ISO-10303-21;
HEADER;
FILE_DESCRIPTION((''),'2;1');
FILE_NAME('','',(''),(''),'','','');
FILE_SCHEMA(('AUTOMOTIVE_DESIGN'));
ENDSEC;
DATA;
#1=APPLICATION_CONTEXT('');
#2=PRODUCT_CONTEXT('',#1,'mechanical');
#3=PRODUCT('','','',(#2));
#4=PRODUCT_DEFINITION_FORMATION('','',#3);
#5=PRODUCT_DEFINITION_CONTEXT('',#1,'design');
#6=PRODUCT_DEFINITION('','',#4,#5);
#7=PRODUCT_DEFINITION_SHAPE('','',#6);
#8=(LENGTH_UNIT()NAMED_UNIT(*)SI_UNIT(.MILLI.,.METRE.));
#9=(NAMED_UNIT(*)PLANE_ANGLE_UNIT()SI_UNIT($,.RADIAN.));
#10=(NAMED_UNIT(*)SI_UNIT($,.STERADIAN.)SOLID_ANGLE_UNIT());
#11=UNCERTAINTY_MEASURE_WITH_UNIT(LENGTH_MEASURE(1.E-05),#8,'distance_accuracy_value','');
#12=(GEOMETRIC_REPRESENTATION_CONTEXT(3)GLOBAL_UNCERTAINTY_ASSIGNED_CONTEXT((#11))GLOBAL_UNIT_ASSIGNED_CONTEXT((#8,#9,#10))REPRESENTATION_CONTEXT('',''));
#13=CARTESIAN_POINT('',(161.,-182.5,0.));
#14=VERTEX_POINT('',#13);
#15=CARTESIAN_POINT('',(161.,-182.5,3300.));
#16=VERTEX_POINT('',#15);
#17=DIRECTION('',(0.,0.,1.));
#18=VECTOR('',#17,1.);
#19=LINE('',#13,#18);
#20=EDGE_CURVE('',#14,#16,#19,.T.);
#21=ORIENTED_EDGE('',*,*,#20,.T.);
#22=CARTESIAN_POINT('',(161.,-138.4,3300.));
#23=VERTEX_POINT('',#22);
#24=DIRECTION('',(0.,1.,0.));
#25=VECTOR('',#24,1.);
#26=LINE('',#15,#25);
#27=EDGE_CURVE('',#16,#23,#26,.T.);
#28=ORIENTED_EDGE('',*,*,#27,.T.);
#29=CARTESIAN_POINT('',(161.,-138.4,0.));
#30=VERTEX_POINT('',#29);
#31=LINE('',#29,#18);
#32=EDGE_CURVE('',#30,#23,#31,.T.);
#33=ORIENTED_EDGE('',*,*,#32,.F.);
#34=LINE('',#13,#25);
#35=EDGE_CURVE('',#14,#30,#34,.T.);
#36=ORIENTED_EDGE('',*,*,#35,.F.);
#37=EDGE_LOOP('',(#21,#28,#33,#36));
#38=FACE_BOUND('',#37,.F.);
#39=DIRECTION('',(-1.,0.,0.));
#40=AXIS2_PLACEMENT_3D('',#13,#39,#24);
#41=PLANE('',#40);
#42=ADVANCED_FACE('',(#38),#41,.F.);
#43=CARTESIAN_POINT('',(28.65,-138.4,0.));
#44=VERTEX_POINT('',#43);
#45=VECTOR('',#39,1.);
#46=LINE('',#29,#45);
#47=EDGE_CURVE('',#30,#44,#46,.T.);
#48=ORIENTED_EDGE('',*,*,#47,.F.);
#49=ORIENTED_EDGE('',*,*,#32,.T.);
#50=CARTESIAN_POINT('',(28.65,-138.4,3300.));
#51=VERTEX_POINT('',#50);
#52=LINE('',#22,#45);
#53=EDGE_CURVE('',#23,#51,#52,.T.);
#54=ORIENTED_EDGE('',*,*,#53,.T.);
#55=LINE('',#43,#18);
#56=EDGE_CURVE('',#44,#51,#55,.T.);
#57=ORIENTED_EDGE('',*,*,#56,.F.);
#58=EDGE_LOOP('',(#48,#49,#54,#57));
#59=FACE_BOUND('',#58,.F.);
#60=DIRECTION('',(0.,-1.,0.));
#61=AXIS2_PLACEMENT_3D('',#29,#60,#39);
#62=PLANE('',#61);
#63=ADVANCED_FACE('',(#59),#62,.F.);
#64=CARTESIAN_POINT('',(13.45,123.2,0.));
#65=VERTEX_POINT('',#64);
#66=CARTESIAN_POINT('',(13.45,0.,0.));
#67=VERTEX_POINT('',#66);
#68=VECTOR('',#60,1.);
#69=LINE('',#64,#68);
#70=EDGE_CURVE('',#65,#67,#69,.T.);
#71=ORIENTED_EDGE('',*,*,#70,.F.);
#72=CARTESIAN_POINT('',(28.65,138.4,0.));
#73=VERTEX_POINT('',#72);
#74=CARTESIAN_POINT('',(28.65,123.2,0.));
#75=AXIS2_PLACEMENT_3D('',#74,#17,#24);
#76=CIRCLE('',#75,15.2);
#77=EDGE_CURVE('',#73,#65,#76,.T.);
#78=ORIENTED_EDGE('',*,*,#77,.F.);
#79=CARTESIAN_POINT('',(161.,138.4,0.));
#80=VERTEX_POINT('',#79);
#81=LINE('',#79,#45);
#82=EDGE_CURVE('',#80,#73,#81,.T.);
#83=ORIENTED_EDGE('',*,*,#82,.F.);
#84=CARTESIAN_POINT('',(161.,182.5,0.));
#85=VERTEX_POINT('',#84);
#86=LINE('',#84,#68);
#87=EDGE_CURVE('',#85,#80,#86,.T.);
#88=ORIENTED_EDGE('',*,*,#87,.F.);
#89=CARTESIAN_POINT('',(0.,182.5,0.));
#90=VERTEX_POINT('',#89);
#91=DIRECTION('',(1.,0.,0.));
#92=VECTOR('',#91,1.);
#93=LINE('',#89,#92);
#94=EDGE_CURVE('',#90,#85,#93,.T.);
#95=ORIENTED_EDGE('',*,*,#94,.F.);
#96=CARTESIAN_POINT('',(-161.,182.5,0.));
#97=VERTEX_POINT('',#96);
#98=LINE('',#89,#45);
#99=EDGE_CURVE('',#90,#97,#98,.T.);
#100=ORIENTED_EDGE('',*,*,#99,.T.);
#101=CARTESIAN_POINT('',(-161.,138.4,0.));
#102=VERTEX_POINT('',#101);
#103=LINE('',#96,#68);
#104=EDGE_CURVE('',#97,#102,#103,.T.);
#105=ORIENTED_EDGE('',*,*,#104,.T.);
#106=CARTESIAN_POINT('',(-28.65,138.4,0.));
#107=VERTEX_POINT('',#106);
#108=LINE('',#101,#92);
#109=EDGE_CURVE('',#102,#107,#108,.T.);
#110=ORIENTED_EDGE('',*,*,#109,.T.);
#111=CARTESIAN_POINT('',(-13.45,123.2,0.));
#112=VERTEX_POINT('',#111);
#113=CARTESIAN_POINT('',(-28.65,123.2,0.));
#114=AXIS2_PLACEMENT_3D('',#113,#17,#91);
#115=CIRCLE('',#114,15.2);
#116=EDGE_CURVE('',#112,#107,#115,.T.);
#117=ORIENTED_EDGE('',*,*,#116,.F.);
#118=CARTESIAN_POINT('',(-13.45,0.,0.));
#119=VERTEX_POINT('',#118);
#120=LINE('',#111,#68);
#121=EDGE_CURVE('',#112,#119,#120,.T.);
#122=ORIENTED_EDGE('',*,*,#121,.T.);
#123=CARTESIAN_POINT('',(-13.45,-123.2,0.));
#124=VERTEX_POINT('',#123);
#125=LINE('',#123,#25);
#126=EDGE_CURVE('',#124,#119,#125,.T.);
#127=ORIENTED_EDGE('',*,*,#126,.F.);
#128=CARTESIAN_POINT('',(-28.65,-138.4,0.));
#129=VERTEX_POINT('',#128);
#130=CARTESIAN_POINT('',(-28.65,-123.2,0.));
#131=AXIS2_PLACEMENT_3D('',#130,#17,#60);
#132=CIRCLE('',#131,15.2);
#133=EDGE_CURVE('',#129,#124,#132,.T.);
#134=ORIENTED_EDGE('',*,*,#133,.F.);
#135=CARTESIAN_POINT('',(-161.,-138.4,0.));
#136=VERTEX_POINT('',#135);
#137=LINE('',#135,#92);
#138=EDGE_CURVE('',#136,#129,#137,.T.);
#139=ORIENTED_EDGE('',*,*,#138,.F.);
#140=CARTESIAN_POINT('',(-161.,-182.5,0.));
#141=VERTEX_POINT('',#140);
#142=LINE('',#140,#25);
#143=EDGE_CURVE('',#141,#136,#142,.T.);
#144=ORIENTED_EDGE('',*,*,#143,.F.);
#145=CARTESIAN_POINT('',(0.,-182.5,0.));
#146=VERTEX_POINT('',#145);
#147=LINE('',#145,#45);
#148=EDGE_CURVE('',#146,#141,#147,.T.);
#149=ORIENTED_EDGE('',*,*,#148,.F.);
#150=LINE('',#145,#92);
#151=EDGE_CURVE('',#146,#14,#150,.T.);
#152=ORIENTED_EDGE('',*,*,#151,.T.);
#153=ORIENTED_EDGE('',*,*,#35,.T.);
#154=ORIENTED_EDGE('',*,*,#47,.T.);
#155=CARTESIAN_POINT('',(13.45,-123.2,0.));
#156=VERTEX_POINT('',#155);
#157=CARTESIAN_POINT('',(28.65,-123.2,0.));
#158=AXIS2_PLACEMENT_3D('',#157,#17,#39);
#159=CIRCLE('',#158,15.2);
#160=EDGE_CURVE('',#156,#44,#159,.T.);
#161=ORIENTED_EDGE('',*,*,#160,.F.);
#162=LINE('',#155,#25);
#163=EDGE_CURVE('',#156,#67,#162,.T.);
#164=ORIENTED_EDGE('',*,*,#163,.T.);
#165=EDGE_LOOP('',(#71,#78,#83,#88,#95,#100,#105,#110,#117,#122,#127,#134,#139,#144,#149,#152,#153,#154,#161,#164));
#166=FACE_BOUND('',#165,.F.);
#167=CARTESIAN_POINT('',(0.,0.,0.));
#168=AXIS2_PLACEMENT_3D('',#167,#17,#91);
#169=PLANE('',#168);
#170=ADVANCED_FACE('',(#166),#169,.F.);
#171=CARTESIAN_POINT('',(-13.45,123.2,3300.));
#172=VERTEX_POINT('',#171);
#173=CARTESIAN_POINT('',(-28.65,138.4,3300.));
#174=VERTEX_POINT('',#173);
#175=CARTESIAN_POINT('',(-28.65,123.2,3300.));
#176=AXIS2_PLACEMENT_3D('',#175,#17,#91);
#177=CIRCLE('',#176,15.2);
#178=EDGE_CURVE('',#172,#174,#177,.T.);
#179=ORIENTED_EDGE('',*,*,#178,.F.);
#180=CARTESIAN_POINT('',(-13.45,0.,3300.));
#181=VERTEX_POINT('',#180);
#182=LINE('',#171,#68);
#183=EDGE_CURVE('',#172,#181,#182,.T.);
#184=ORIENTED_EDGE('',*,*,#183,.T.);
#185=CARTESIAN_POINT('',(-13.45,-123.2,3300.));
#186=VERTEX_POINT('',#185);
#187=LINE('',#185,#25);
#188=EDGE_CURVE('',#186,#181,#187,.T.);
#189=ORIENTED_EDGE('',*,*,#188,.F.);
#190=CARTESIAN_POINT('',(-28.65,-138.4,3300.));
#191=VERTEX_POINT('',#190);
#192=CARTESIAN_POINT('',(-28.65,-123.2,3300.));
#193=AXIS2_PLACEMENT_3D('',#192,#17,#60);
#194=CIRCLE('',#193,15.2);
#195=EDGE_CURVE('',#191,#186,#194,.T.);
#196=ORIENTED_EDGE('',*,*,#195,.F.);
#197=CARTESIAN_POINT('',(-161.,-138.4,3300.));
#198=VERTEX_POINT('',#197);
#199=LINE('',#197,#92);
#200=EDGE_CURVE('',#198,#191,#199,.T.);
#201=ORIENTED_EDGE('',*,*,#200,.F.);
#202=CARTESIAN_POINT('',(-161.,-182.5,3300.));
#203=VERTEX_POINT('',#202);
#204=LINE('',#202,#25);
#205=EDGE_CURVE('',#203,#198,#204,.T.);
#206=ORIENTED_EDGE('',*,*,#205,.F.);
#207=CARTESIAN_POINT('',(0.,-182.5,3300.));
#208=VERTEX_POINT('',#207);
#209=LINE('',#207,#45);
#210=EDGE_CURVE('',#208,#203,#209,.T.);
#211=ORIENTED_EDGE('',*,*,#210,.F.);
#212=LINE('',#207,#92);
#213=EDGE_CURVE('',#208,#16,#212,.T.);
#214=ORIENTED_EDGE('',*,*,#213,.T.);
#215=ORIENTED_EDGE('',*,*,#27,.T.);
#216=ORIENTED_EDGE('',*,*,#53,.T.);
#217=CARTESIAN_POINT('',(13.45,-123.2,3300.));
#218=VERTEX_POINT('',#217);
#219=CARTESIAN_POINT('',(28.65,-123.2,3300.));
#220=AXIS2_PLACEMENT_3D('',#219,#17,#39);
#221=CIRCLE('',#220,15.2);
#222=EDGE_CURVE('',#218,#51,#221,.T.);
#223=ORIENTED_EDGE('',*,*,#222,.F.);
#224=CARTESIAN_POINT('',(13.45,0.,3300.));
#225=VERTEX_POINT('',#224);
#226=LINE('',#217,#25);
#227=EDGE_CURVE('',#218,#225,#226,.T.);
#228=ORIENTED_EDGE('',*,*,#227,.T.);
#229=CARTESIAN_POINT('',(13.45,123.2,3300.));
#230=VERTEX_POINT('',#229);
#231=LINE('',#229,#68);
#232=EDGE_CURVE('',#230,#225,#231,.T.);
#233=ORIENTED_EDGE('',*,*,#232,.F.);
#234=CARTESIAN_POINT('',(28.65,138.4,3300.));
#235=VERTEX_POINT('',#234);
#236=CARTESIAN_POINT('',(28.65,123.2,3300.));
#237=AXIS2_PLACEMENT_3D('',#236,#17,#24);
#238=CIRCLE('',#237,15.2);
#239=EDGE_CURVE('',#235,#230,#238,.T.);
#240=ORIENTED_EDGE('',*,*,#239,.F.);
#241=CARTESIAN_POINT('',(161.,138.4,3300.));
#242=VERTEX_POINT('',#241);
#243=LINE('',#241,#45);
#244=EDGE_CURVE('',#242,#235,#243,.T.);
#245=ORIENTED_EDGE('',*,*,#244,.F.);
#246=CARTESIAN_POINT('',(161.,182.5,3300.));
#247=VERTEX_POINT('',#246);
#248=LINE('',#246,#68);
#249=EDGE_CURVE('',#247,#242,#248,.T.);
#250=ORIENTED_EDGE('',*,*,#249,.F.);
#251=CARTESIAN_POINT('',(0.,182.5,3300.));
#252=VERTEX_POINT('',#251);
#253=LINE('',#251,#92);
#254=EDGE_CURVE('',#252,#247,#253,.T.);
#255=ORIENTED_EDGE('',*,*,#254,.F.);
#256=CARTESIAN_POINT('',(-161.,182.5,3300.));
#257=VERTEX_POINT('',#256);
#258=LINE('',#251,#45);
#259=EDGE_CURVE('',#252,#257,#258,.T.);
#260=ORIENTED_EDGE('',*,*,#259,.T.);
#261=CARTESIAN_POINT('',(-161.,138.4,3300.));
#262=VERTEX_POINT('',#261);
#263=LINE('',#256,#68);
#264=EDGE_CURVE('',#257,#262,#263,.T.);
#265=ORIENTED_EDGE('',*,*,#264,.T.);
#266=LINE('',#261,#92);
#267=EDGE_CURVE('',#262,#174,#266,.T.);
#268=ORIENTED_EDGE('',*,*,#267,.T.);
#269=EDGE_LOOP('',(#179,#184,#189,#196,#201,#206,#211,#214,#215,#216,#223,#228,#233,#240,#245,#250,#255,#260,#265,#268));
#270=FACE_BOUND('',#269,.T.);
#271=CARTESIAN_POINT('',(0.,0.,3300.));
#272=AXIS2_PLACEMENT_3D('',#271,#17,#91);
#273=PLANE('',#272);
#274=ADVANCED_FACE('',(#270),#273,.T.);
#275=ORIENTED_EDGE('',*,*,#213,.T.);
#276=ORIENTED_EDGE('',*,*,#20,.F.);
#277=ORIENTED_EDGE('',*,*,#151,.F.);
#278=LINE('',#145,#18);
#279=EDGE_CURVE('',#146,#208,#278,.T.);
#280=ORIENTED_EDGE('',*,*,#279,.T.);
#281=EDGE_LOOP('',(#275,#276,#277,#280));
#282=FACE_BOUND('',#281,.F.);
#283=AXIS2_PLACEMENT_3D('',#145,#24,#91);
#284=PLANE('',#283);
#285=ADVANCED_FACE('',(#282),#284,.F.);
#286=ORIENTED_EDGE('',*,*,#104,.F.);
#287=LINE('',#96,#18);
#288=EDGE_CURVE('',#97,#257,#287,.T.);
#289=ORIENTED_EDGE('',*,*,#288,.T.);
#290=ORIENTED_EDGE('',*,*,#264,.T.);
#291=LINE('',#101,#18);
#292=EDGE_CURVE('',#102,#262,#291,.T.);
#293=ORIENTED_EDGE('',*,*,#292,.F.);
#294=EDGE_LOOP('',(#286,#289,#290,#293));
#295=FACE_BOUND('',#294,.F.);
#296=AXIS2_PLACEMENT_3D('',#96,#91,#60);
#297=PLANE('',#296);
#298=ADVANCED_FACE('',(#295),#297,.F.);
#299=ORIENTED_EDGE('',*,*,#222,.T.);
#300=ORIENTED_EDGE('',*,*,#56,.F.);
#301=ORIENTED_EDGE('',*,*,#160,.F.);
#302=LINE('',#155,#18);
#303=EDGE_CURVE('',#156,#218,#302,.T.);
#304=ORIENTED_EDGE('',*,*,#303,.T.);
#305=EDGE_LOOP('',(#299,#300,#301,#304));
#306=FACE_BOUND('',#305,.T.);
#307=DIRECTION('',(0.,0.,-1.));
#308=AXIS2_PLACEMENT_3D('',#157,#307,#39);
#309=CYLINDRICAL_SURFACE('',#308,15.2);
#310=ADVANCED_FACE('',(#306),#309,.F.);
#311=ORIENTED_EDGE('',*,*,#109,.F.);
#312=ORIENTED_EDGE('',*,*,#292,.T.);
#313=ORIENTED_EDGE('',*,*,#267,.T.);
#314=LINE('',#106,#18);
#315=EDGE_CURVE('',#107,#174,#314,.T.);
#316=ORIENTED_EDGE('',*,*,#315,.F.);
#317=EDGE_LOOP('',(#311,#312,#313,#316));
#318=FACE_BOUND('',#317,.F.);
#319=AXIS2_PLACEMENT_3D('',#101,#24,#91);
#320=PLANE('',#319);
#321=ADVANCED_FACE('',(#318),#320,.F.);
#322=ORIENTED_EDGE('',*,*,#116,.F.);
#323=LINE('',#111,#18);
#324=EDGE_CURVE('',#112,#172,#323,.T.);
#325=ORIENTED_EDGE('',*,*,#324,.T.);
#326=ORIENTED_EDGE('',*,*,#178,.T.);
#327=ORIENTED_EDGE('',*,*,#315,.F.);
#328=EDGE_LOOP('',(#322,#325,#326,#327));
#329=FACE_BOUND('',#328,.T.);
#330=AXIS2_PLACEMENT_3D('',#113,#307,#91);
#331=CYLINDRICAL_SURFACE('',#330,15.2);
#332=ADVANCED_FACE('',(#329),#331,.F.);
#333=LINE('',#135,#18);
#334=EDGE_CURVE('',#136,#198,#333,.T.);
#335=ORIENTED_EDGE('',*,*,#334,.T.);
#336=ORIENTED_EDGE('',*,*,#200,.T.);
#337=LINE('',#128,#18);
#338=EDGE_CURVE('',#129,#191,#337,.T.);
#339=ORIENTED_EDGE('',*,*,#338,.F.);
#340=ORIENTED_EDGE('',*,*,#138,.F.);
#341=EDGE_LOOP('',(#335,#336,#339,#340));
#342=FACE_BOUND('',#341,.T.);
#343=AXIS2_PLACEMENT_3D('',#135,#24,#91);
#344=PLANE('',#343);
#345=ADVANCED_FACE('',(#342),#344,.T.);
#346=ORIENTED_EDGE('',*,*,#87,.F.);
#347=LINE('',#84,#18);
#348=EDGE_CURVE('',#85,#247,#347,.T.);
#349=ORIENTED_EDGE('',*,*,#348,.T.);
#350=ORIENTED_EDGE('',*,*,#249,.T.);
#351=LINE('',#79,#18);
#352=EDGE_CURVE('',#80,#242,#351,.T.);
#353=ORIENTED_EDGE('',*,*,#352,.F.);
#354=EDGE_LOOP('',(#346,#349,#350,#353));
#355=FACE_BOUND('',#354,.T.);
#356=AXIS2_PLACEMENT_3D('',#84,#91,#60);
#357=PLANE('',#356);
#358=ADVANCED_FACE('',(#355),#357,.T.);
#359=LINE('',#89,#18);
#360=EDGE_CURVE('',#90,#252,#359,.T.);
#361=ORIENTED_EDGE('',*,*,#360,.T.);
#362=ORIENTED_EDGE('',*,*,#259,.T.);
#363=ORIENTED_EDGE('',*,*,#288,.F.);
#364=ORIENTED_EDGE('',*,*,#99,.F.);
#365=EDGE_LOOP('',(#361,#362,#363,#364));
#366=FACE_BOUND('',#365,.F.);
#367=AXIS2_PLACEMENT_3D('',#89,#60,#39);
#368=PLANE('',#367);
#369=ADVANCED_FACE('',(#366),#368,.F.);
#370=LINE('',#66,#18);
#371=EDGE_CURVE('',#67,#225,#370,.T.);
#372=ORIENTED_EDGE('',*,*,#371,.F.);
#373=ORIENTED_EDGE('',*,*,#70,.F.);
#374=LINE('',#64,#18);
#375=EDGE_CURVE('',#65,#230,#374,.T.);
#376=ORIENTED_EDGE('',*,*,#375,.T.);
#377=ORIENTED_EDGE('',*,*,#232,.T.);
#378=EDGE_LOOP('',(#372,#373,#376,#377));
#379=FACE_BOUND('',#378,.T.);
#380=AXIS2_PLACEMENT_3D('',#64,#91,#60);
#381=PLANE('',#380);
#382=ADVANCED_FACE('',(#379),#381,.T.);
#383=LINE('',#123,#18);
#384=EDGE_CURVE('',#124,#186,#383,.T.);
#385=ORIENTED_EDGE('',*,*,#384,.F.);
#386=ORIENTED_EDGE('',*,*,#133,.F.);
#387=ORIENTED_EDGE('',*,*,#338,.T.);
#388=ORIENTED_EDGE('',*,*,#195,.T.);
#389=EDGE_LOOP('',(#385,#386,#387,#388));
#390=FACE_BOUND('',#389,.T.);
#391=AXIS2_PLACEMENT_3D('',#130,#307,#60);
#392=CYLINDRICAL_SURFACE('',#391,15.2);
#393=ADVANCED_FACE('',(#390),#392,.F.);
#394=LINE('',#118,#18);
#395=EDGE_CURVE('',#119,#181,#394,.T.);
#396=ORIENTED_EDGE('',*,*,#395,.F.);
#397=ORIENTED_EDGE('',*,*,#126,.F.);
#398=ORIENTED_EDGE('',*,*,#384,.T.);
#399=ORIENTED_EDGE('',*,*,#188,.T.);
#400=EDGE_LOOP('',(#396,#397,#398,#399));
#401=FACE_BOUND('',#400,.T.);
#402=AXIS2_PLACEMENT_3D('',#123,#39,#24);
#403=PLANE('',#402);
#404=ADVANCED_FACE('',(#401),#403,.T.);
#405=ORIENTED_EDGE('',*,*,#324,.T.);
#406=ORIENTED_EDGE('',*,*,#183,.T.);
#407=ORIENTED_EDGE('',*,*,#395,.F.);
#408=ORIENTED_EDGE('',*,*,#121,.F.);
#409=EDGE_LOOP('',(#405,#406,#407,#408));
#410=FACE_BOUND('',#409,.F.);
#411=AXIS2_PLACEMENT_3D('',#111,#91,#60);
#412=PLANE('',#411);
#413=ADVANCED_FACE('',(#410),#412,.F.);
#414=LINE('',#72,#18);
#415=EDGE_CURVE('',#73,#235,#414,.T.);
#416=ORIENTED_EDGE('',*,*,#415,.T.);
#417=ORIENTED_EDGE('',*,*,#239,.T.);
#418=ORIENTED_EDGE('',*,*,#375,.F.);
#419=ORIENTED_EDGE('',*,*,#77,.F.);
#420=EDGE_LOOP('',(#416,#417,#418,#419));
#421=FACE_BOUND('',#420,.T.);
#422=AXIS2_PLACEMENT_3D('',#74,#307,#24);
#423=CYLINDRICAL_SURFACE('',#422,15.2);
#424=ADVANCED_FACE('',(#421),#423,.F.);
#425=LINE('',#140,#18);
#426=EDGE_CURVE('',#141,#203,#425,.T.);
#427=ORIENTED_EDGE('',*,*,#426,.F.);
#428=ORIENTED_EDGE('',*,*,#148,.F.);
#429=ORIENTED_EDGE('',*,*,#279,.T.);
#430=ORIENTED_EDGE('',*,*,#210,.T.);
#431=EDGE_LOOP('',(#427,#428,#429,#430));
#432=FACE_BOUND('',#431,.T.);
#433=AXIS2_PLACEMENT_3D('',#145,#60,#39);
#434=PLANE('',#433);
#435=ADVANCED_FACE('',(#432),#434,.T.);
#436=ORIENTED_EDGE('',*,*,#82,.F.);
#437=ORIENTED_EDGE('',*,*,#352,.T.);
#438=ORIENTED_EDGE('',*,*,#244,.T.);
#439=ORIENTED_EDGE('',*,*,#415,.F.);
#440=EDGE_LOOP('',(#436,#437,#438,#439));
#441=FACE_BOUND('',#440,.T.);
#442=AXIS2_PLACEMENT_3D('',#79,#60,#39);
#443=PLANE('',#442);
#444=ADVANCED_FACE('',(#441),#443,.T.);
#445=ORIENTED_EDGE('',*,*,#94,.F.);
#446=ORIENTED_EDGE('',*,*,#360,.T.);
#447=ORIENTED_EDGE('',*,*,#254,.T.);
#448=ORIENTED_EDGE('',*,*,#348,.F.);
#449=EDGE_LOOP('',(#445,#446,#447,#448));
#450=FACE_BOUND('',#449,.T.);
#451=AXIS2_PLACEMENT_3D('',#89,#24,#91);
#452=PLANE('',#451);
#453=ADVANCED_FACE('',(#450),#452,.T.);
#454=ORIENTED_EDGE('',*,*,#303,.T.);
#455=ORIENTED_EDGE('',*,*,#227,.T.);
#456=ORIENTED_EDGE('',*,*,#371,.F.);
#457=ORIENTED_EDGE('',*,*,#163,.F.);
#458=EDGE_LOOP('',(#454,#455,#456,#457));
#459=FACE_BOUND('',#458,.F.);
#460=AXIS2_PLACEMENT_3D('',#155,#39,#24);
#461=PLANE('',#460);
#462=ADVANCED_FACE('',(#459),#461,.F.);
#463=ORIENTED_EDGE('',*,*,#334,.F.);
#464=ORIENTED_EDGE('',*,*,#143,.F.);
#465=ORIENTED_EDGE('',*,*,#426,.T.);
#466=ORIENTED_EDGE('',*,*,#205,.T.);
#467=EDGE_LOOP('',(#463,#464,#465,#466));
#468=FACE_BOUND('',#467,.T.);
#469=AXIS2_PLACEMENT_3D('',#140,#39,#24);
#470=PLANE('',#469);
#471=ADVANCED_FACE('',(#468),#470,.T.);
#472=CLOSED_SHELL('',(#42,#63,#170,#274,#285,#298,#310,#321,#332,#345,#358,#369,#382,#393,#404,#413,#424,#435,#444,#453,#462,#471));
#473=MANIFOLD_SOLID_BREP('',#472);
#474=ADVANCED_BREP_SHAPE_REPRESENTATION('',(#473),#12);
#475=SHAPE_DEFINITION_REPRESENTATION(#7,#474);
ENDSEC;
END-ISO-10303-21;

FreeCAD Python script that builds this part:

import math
import FreeCAD as App
import Part
import Sketcher

doc = App.newDocument("Part")
body = doc.addObject("PartDesign::Body", "Body")

sketch1 = body.newObject("Sketcher::SketchObject", "Sketch")
sketch1.AttachmentSupport = (doc.getObject("XY_Plane"), [""])
sketch1.MapMode = "FlatFace"
sketch1.addGeometry(Part.LineSegment(App.Vector(-161, -138.4, 0), App.Vector(-161, -182.5, 0)), False)
sketch1.addGeometry(Part.LineSegment(App.Vector(-161, -182.5, 0), App.Vector(161, -182.5, 0)), False)
sketch1.addGeometry(Part.LineSegment(App.Vector(161, -182.5, 0), App.Vector(161, -138.4, 0)), False)
sketch1.addGeometry(Part.LineSegment(App.Vector(161, -138.4, 0), App.Vector(28.65, -138.4, 0)), False)
sketch1.addGeometry(Part.ArcOfCircle(Part.Circle(App.Vector(28.65, -123.2, 0), App.Vector(0, 0, 1), 15.2), math.radians(180), math.radians(270)), False)
sketch1.addGeometry(Part.LineSegment(App.Vector(13.45, -123.2, 0), App.Vector(13.45, 123.2, 0)), False)
sketch1.addGeometry(Part.ArcOfCircle(Part.Circle(App.Vector(28.65, 123.2, 0), App.Vector(0, 0, 1), 15.2), math.radians(90), math.radians(180)), False)
sketch1.addGeometry(Part.LineSegment(App.Vector(28.65, 138.4, 0), App.Vector(161, 138.4, 0)), False)
sketch1.addGeometry(Part.LineSegment(App.Vector(161, 138.4, 0), App.Vector(161, 182.5, 0)), False)
sketch1.addGeometry(Part.LineSegment(App.Vector(161, 182.5, 0), App.Vector(-161, 182.5, 0)), False)
sketch1.addGeometry(Part.LineSegment(App.Vector(-161, 182.5, 0), App.Vector(-161, 138.4, 0)), False)
sketch1.addGeometry(Part.LineSegment(App.Vector(-161, 138.4, 0), App.Vector(-28.65, 138.4, 0)), False)
sketch1.addGeometry(Part.ArcOfCircle(Part.Circle(App.Vector(-28.65, 123.2, 0), App.Vector(0, 0, 1), 15.2), math.radians(0), math.radians(90)), False)
sketch1.addGeometry(Part.LineSegment(App.Vector(-13.45, 123.2, 0), App.Vector(-13.45, -123.2, 0)), False)
sketch1.addGeometry(Part.ArcOfCircle(Part.Circle(App.Vector(-28.65, -123.2, 0), App.Vector(0, 0, 1), 15.2), math.radians(-90), math.radians(0)), False)
sketch1.addGeometry(Part.LineSegment(App.Vector(-28.65, -138.4, 0), App.Vector(-161, -138.4, 0)), False)
sketch1.addConstraint(Sketcher.Constraint("Coincident", 0, 2, 1, 1))
sketch1.addConstraint(Sketcher.Constraint("Coincident", 1, 2, 2, 1))
sketch1.addConstraint(Sketcher.Constraint("Coincident", 2, 2, 3, 1))
sketch1.addConstraint(Sketcher.Constraint("Tangent", 3, 2, 4, 2))
sketch1.addConstraint(Sketcher.Constraint("Tangent", 4, 1, 5, 1))
sketch1.addConstraint(Sketcher.Constraint("Tangent", 5, 2, 6, 2))
sketch1.addConstraint(Sketcher.Constraint("Tangent", 6, 1, 7, 1))
sketch1.addConstraint(Sketcher.Constraint("Coincident", 7, 2, 8, 1))
sketch1.addConstraint(Sketcher.Constraint("Coincident", 8, 2, 9, 1))
sketch1.addConstraint(Sketcher.Constraint("Coincident", 9, 2, 10, 1))
sketch1.addConstraint(Sketcher.Constraint("Coincident", 10, 2, 11, 1))
sketch1.addConstraint(Sketcher.Constraint("Tangent", 11, 2, 12, 2))
sketch1.addConstraint(Sketcher.Constraint("Tangent", 12, 1, 13, 1))
sketch1.addConstraint(Sketcher.Constraint("Tangent", 13, 2, 14, 2))
sketch1.addConstraint(Sketcher.Constraint("Tangent", 14, 1, 15, 1))
sketch1.addConstraint(Sketcher.Constraint("Coincident", 15, 2, 0, 1))
sketch1.addConstraint(Sketcher.Constraint("Vertical", 0))
sketch1.addConstraint(Sketcher.Constraint("Horizontal", 1))
sketch1.addConstraint(Sketcher.Constraint("Vertical", 2))
sketch1.addConstraint(Sketcher.Constraint("Horizontal", 3))
sketch1.addConstraint(Sketcher.Constraint("Vertical", 5))
sketch1.addConstraint(Sketcher.Constraint("Horizontal", 7))
sketch1.addConstraint(Sketcher.Constraint("Vertical", 8))
sketch1.addConstraint(Sketcher.Constraint("Horizontal", 9))
sketch1.addConstraint(Sketcher.Constraint("Vertical", 10))
sketch1.addConstraint(Sketcher.Constraint("Horizontal", 11))
sketch1.addConstraint(Sketcher.Constraint("Vertical", 13))
sketch1.addConstraint(Sketcher.Constraint("Horizontal", 15))
sketch1.addConstraint(Sketcher.Constraint("Equal", 4, 6))
sketch1.addConstraint(Sketcher.Constraint("Equal", 6, 12))
sketch1.addConstraint(Sketcher.Constraint("Equal", 12, 14))
sketch1.addConstraint(Sketcher.Constraint("Symmetric", 4, 3, 12, 3, -1, 1))
sketch1.addConstraint(Sketcher.Constraint("Symmetric", 0, 2, 8, 2, -1, 1))
sketch1.addConstraint(Sketcher.Constraint("Symmetric", 7, 2, 10, 2, -2))
sketch1.addConstraint(Sketcher.Constraint("Symmetric", 2, 2, 15, 2, -2))
sketch1.addConstraint(Sketcher.Constraint("Radius", 4, 15.2))
sketch1.addConstraint(Sketcher.Constraint("DistanceY", 0, 2, 0, 1, 44.1))
sketch1.addConstraint(Sketcher.Constraint("DistanceX", 0, 2, -1, 1, 161.0))
sketch1.addConstraint(Sketcher.Constraint("DistanceY", 0, 2, -1, 1, 182.5))
sketch1.addConstraint(Sketcher.Constraint("DistanceX", -1, 1, 4, 1, 13.45))
pad1 = body.newObject("PartDesign::Pad", "Pad")
pad1.Profile = sketch1
pad1.Length = 3300

doc.recompute()
